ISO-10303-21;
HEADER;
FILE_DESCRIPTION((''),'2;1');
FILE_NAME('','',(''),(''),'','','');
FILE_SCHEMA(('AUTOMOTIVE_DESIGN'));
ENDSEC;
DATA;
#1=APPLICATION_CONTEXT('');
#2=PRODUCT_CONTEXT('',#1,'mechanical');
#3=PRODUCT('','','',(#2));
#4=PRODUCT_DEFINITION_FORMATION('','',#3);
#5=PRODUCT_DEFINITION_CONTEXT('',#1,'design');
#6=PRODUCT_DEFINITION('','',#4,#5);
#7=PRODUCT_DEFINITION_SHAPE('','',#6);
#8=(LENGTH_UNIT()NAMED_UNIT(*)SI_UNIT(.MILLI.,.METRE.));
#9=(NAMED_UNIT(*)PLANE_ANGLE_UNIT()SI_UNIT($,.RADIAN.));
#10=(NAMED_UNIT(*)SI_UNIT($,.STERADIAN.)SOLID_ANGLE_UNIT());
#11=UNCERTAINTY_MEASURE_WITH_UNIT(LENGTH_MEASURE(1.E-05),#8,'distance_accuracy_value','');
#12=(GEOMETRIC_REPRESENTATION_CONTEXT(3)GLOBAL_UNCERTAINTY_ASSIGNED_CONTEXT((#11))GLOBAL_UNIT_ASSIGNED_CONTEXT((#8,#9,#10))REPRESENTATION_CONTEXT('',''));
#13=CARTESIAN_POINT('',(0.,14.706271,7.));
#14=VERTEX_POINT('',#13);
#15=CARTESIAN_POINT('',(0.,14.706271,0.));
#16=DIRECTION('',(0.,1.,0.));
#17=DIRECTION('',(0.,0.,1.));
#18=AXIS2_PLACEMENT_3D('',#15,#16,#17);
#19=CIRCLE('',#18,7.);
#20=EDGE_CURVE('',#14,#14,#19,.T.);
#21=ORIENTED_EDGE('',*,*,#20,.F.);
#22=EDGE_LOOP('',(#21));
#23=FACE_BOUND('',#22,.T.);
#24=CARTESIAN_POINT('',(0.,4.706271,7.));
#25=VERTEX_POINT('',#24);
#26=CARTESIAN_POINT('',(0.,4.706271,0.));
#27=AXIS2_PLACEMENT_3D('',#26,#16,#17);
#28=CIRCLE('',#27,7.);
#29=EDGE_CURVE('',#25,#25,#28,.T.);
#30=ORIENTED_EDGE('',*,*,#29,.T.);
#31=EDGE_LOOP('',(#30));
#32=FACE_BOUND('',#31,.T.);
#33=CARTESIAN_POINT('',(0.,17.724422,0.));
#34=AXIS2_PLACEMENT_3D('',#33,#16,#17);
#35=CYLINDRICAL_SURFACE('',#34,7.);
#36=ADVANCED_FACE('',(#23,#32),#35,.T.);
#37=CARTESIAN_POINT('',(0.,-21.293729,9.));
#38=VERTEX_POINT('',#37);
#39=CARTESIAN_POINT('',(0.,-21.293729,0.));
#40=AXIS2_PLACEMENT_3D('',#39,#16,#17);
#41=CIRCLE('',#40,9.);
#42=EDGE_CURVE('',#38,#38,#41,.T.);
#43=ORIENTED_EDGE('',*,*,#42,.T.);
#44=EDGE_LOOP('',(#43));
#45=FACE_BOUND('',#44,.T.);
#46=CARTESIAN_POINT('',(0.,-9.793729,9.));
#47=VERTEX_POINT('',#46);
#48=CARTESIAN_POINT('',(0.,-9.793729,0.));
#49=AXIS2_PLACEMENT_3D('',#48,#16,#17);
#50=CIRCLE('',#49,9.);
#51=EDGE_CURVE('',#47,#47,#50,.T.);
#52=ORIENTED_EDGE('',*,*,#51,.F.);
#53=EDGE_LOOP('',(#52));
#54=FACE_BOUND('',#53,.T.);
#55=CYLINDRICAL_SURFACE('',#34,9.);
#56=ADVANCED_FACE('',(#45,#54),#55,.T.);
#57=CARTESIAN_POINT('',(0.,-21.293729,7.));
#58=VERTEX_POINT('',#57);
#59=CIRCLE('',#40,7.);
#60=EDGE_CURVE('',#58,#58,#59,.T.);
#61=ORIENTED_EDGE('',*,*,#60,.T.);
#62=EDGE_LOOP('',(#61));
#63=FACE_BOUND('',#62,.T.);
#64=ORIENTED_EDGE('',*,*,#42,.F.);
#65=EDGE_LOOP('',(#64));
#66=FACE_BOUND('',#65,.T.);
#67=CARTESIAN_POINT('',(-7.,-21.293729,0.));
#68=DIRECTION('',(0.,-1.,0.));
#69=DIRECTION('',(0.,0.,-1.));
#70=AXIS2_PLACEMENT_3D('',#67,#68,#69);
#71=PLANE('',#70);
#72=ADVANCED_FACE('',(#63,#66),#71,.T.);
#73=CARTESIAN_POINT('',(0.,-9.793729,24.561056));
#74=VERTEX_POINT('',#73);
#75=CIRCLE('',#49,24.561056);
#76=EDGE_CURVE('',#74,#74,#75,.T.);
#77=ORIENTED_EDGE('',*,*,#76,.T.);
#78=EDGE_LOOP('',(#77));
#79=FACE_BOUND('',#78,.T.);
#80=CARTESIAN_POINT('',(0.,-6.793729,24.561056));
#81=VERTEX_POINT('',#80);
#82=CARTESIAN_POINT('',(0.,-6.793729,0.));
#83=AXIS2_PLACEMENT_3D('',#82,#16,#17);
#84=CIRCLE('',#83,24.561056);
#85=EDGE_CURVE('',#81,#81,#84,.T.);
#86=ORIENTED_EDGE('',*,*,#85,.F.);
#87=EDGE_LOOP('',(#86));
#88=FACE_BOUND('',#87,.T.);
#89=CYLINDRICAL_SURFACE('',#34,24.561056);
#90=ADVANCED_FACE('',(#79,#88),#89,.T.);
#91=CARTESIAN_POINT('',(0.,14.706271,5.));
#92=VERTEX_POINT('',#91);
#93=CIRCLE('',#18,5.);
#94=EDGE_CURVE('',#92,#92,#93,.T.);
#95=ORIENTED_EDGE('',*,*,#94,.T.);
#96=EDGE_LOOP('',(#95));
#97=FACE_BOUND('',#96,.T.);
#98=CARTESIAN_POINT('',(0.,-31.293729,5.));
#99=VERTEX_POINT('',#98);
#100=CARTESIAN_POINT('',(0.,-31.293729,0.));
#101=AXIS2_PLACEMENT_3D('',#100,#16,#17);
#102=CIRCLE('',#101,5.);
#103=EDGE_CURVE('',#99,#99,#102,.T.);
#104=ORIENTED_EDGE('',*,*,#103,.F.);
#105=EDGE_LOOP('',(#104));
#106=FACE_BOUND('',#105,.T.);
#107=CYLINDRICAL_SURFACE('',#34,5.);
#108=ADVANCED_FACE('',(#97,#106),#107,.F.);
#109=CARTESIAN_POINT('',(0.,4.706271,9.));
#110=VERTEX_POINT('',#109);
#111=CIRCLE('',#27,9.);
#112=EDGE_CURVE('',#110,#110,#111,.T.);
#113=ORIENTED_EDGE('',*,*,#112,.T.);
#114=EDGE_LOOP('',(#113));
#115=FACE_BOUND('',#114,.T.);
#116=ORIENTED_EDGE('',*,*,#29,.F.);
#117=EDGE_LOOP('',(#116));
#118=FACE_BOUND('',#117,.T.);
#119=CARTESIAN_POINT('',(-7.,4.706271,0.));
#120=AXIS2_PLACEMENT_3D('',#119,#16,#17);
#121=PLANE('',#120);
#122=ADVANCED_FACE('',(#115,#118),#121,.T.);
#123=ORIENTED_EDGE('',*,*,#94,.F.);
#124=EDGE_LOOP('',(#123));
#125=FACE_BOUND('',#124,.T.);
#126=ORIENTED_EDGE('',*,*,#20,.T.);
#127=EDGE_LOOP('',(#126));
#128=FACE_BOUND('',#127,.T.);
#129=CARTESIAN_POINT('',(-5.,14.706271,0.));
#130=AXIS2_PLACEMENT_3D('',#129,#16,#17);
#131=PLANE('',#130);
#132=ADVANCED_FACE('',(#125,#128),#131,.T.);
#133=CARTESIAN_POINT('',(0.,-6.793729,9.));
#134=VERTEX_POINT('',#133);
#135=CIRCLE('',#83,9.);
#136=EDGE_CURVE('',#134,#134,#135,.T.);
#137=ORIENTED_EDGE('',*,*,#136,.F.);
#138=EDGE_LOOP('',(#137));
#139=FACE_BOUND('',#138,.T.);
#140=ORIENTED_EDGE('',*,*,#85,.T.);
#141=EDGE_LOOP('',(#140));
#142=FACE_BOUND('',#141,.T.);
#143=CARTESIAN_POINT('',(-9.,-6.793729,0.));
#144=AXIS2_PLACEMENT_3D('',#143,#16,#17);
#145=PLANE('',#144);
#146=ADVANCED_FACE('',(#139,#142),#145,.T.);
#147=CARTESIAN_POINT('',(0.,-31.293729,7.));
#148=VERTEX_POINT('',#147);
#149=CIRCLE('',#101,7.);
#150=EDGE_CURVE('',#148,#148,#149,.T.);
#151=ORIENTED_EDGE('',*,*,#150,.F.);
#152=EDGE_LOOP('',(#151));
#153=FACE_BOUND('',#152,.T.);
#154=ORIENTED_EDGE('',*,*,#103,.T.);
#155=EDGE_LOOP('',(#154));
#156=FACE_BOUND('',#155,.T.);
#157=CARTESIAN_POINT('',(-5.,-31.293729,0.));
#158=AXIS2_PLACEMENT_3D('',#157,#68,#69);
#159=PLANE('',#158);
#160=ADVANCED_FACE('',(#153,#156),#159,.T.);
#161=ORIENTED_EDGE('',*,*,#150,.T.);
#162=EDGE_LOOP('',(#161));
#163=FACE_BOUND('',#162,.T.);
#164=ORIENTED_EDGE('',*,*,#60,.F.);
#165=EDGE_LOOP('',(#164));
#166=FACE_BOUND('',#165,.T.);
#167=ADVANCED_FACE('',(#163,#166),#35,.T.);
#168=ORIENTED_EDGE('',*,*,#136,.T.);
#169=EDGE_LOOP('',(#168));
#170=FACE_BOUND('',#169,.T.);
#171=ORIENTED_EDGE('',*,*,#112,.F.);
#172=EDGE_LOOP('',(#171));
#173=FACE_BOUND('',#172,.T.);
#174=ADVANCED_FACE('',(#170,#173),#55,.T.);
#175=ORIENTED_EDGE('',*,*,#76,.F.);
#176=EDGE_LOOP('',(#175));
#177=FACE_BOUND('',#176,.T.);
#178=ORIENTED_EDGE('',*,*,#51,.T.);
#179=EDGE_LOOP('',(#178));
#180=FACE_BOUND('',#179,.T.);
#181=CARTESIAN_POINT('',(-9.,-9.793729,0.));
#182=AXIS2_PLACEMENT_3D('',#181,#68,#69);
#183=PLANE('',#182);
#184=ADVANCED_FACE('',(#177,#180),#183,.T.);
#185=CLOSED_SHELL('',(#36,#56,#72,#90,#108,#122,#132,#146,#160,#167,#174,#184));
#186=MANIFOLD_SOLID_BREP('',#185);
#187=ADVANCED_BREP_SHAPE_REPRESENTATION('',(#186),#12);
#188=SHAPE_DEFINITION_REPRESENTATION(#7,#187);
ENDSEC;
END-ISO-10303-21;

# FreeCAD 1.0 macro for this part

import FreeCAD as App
import Part
import Sketcher
from FreeCAD import Vector
Q = App.Units.Quantity


def add_polygon(sketch, points):
    """Adds a closed chain of lines whose ends are joined by coincident constraints."""
    first, n = sketch.GeometryCount, len(points)
    for a, b in zip(points, points[1:] + points[:1]):
        sketch.addGeometry(Part.LineSegment(App.Vector(*a, 0), App.Vector(*b, 0)), False)
    for i in range(n):
        sketch.addConstraint(Sketcher.Constraint("Coincident", first + i, 2, first + (i + 1) % n, 1))

doc = App.newDocument("Part")
body = doc.addObject("PartDesign::Body", "Body")

sketch1 = body.newObject("Sketcher::SketchObject", "Sketch")
sketch1.AttachmentSupport = (doc.getObject("XY_Plane"), [""])
sketch1.MapMode = "FlatFace"
add_polygon(sketch1, [(-9, -6.8), (-24.6, -6.8), (-24.6, -9.8), (-9, -9.8), (-9, -21.3), (-7, -21.3), (-7, -31.3), (-5, -31.3), (-5, 14.7), (-7, 14.7), (-7, 4.7), (-9, 4.7)])
sketch1.addConstraint(Sketcher.Constraint("Horizontal", 0))
sketch1.addConstraint(Sketcher.Constraint("Vertical", 1))
sketch1.addConstraint(Sketcher.Constraint("Horizontal", 2))
sketch1.addConstraint(Sketcher.Constraint("Vertical", 3))
sketch1.addConstraint(Sketcher.Constraint("Horizontal", 4))
sketch1.addConstraint(Sketcher.Constraint("Vertical", 5))
sketch1.addConstraint(Sketcher.Constraint("Horizontal", 6))
sketch1.addConstraint(Sketcher.Constraint("Vertical", 7))
sketch1.addConstraint(Sketcher.Constraint("Horizontal", 8))
sketch1.addConstraint(Sketcher.Constraint("Vertical", 9))
sketch1.addConstraint(Sketcher.Constraint("Horizontal", 10))
sketch1.addConstraint(Sketcher.Constraint("Vertical", 11))
sketch1.addConstraint(Sketcher.Constraint("Vertical", 5, 2, 8, 2))
sketch1.addConstraint(Sketcher.Constraint("Vertical", 3, 2, 10, 2))
sketch1.addConstraint(Sketcher.Constraint("Equal", 4, 6))
sketch1.addConstraint(Sketcher.Constraint("Equal", 5, 9))
sketch1.addConstraint(Sketcher.Constraint("Equal", 3, 11))
sketch1.addConstraint(Sketcher.Constraint("DistanceX", 4, 1, 4, 2, Q("2 mm")))
sketch1.addConstraint(Sketcher.Constraint("DistanceY", 1, 2, 1, 1, Q("3 mm")))
sketch1.addConstraint(Sketcher.Constraint("DistanceY", 5, 2, 5, 1, Q("10 mm")))
sketch1.addConstraint(Sketcher.Constraint("DistanceY", 7, 1, 7, 2, Q("46 mm")))
sketch1.addConstraint(Sketcher.Constraint("DistanceX", 2, 2, -1, 1, Q("9 mm")))
sketch1.addConstraint(Sketcher.Constraint("DistanceX", 0, 2, 0, 1, Q("15.561056 mm")))
sketch1.addConstraint(Sketcher.Constraint("DistanceY", 0, 2, -1, 1, Q("6.793729 mm")))
revolution = body.newObject("PartDesign::Revolution", "Revolution")
revolution.Profile = sketch1
revolution.ReferenceAxis = (sketch1, ["V_Axis"])
revolution.Angle = 360

doc.recompute()
